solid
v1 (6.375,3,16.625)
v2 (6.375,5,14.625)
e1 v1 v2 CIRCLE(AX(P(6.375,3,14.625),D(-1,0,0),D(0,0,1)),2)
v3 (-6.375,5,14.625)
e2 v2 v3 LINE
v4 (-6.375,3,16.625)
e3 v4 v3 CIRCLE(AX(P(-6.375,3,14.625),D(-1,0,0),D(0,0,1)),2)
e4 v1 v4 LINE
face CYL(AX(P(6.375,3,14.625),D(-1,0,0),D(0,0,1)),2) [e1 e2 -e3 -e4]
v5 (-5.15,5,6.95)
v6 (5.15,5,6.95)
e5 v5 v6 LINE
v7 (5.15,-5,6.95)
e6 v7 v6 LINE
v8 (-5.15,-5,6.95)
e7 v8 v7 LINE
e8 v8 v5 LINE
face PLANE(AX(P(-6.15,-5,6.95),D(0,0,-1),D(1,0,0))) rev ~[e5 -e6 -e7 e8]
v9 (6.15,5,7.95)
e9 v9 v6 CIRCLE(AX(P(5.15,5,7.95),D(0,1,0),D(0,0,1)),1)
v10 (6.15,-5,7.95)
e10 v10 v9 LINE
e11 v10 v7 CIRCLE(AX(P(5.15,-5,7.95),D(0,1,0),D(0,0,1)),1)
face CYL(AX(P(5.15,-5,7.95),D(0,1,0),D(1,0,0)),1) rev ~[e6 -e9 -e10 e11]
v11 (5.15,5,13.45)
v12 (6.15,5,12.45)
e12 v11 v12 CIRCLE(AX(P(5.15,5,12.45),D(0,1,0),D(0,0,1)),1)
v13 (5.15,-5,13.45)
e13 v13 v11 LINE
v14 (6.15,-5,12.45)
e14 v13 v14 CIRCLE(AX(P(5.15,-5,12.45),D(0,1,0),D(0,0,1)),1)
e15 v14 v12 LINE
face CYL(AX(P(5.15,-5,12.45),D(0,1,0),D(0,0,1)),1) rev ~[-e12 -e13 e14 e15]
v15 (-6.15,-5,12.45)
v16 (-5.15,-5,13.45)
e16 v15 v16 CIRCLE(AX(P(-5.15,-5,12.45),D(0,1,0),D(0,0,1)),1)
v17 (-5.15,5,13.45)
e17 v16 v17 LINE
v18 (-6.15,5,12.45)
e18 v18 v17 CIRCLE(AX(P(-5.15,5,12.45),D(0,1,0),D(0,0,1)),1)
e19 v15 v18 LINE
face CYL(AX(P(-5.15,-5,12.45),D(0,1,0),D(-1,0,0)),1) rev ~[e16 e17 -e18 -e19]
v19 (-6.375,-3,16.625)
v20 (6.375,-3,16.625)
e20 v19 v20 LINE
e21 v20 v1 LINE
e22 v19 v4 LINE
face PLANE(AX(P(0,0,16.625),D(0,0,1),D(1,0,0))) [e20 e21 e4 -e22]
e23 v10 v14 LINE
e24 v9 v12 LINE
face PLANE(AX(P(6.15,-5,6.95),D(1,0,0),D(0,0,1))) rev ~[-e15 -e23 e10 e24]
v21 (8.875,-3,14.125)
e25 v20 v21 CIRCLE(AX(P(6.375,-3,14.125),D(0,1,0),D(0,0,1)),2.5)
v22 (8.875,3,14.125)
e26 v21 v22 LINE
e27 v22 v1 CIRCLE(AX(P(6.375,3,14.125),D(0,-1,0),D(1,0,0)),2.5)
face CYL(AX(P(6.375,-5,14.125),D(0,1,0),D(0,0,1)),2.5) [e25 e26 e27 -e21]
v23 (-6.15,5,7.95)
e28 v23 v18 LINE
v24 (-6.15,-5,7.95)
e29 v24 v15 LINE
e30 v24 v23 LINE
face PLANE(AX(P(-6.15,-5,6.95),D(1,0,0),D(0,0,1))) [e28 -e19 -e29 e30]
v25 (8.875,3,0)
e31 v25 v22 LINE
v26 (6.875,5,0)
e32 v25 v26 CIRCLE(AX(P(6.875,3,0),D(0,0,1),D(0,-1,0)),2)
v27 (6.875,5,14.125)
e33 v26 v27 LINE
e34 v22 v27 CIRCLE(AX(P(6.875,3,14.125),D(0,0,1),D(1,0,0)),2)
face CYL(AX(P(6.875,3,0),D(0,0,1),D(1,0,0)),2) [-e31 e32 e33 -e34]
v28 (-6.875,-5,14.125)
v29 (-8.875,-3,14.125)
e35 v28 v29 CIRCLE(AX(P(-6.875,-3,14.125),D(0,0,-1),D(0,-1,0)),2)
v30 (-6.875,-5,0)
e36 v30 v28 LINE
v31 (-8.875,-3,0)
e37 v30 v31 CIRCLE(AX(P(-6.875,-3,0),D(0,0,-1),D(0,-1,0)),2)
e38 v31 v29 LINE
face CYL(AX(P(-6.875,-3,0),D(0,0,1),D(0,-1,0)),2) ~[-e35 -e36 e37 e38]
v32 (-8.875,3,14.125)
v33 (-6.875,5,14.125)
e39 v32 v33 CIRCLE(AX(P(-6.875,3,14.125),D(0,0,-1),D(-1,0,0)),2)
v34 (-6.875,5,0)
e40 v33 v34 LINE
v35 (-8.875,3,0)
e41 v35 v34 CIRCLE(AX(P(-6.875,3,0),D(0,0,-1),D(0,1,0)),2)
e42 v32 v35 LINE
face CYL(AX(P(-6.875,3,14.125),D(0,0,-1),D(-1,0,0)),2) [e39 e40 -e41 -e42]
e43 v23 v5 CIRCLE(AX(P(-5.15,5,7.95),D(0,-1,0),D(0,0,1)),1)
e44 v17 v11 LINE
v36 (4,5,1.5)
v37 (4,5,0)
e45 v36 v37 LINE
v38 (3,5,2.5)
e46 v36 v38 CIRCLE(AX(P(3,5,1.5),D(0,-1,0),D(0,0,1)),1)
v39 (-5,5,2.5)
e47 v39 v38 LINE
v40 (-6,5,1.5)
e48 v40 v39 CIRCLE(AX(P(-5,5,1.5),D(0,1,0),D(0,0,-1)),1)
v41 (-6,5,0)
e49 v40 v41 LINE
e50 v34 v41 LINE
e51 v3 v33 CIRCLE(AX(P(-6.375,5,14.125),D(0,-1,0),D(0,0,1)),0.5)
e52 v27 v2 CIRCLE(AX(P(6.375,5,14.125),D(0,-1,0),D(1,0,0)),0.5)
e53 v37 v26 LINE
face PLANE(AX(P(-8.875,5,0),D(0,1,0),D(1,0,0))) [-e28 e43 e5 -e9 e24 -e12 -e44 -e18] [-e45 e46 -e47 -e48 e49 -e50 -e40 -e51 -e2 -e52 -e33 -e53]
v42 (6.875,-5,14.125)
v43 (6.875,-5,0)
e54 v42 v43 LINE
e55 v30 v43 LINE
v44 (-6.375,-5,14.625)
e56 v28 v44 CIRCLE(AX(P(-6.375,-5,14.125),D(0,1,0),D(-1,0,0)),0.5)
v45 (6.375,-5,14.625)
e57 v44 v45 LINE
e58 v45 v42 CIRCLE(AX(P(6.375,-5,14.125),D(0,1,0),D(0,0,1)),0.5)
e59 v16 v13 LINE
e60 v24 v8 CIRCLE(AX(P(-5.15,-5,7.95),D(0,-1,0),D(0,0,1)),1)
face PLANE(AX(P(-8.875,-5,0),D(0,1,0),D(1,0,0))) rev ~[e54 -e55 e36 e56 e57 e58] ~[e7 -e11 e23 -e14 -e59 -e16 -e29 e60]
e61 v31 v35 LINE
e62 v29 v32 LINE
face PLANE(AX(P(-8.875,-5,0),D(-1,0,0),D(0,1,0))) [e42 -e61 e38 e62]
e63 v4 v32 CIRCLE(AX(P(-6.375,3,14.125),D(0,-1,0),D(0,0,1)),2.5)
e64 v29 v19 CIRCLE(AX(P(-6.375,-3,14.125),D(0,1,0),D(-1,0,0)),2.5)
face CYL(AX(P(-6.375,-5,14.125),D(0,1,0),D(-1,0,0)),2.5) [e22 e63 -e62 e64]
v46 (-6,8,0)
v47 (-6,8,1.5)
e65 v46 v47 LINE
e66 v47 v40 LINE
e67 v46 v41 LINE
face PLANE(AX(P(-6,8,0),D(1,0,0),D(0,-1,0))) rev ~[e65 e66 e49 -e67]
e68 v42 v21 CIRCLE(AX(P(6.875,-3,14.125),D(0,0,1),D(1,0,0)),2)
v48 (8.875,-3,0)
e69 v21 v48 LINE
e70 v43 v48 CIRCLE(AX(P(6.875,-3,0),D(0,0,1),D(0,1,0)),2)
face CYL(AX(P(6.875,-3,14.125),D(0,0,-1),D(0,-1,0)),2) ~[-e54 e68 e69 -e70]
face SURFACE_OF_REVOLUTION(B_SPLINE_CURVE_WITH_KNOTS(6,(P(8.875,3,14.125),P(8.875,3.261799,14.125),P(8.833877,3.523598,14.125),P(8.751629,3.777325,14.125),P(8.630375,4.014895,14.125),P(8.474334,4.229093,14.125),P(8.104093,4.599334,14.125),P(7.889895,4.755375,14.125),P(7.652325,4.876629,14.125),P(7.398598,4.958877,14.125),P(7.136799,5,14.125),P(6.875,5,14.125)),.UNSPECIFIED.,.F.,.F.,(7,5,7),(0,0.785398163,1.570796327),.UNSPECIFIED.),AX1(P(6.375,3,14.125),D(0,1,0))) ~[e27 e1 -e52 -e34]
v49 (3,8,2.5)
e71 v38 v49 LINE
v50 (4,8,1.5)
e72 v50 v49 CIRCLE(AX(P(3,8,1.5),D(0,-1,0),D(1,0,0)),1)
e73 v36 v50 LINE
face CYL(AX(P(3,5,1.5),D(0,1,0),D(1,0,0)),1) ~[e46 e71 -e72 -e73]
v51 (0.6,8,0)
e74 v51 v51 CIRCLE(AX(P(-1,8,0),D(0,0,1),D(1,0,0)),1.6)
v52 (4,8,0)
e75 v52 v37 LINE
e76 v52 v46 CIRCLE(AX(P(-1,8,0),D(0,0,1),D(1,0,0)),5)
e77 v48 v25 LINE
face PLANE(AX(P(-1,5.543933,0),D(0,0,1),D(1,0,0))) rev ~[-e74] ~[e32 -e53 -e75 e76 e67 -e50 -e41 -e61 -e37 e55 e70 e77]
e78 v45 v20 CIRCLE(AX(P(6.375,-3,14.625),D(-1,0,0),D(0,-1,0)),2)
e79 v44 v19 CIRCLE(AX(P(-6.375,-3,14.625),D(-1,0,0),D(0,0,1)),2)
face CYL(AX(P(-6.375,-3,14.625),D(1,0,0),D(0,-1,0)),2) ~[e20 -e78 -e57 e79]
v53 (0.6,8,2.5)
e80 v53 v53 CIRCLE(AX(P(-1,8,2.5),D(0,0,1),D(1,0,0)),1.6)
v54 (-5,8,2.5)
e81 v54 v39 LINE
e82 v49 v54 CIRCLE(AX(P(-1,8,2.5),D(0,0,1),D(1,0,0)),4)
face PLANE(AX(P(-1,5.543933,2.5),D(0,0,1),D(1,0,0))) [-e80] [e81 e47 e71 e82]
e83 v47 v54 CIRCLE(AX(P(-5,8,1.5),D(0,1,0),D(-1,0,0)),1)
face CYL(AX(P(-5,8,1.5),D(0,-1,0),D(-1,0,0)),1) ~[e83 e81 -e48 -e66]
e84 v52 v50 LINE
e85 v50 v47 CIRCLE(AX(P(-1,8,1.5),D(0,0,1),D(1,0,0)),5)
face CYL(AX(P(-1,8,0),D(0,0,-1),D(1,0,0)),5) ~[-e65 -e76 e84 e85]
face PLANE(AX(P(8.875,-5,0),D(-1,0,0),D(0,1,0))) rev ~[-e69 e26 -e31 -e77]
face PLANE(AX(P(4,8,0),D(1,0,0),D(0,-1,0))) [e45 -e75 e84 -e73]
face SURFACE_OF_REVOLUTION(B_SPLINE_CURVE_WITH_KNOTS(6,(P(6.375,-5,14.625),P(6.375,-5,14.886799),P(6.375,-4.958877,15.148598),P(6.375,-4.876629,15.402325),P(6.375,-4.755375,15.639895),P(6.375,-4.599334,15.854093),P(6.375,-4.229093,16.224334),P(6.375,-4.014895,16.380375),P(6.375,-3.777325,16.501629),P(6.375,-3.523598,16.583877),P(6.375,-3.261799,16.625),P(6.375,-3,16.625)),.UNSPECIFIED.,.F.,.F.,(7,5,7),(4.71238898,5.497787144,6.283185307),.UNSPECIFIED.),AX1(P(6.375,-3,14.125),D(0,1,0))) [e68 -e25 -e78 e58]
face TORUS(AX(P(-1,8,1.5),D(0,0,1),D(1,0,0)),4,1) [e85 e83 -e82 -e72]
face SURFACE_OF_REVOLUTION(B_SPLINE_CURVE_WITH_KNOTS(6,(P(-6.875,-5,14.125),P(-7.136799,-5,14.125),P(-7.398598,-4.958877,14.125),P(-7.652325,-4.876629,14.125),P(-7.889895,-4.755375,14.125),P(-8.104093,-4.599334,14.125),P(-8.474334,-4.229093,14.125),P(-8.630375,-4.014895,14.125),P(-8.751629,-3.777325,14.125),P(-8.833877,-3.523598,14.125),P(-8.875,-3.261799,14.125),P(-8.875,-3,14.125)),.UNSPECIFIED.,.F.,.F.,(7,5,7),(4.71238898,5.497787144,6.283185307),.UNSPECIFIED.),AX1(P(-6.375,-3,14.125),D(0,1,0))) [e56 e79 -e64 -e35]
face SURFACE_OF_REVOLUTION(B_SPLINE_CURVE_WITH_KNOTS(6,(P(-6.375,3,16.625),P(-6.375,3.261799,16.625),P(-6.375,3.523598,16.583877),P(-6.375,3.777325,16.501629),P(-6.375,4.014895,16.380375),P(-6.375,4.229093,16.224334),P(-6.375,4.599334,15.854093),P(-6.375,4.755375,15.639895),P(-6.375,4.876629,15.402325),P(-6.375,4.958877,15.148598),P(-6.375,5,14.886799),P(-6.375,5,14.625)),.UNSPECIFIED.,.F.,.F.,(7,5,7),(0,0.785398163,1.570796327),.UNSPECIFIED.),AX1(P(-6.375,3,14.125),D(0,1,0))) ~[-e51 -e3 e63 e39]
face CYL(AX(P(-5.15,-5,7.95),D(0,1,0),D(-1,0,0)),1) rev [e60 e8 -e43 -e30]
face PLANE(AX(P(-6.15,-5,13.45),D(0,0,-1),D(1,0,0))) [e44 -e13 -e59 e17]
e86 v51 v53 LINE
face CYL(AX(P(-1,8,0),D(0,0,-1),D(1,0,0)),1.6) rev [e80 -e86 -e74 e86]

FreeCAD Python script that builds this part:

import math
import FreeCAD as App
import Part
import Sketcher

V = App.Vector
Q = App.Units.Quantity


def edges_at(feature, points):
    """Names of the edges that pass closest to the given points."""
    edges = feature.Shape.Edges
    near = lambda p: min(range(len(edges)), key=lambda i: edges[i].distToShape(Part.Vertex(*p))[0])
    return sorted({f"Edge{near(p) + 1}" for p in points})

doc = App.newDocument("Part")
body = doc.addObject("PartDesign::Body", "Body")

# Sketch on XY plane
sketch1 = doc.addObject("Sketcher::SketchObject", "Sketch")
body.addObject(sketch1)
sketch1.AttachmentSupport = (doc.XY_Plane, [""])
sketch1.MapMode = "FlatFace"
sketch1.addGeometry([
    Part.LineSegment(V(-9, 5, 0), V(-9, -5, 0)),
    Part.LineSegment(V(-9, -5, 0), V(9, -5, 0)),
    Part.LineSegment(V(9, -5, 0), V(9, 5, 0)),
    Part.LineSegment(V(9, 5, 0), V(-9, 5, 0)),
], False)
sketch1.addConstraint([
    Sketcher.Constraint("Coincident", 0, 2, 1, 1),
    Sketcher.Constraint("Coincident", 1, 2, 2, 1),
    Sketcher.Constraint("Coincident", 2, 2, 3, 1),
    Sketcher.Constraint("Coincident", 3, 2, 0, 1),
    Sketcher.Constraint("Vertical", 0),
    Sketcher.Constraint("Horizontal", 1),
    Sketcher.Constraint("Vertical", 2),
    Sketcher.Constraint("Horizontal", 3),
    Sketcher.Constraint("Symmetric", 0, 2, 2, 2, -1, 1),
    Sketcher.Constraint("DistanceY", 0, 2, 0, 1, Q("10 mm")),
    Sketcher.Constraint("DistanceX", 1, 1, 1, 2, Q("17.75 mm")),
])
pad1 = doc.addObject("PartDesign::Pad", "Pad")
body.addObject(pad1)
pad1.Profile = sketch1
pad1.Length = 16.625

# Sketch on XZ plane
sketch2 = doc.addObject("Sketcher::SketchObject", "Sketch001")
body.addObject(sketch2)
sketch2.AttachmentSupport = (doc.XZ_Plane, [""])
sketch2.MapMode = "FlatFace"
sketch2.AttachmentOffset = App.Placement(V(0, 0, 5), App.Rotation())
sketch2.addGeometry([
    Part.LineSegment(V(-6, 13, 0), V(-6, 7, 0)),
    Part.LineSegment(V(-6, 7, 0), V(6, 7, 0)),
    Part.LineSegment(V(6, 7, 0), V(6, 13, 0)),
    Part.LineSegment(V(6, 13, 0), V(-6, 13, 0)),
], False)
sketch2.addConstraint([
    Sketcher.Constraint("Coincident", 0, 2, 1, 1),
    Sketcher.Constraint("Coincident", 1, 2, 2, 1),
    Sketcher.Constraint("Coincident", 2, 2, 3, 1),
    Sketcher.Constraint("Coincident", 3, 2, 0, 1),
    Sketcher.Constraint("Vertical", 0),
    Sketcher.Constraint("Horizontal", 1),
    Sketcher.Constraint("Vertical", 2),
    Sketcher.Constraint("Horizontal", 3),
    Sketcher.Constraint("DistanceX", 1, 1, 1, 2, Q("12.3 mm")),
    Sketcher.Constraint("DistanceY", 0, 2, 0, 1, Q("6.5 mm")),
    Sketcher.Constraint("DistanceX", 0, 2, -1, 1, Q("6.15 mm")),
    Sketcher.Constraint("DistanceY", -1, 1, 0, 2, Q("6.95 mm")),
])
pocket1 = doc.addObject("PartDesign::Pocket", "Pocket")
body.addObject(pocket1)
pocket1.Profile = sketch2
pocket1.Length = 10
doc.recompute()

fillet = doc.addObject("PartDesign::Fillet", "Fillet")
body.addObject(fillet)
fillet.Base = (pocket1, edges_at(pocket1, [
    (-6.15, 0, 13.45),
    (6.15, 0, 13.45),
    (6.15, 0, 6.95),
    (-6.15, 0, 6.95),
]))
fillet.Radius = 1
doc.recompute()

fillet2 = doc.addObject("PartDesign::Fillet", "Fillet001")
body.addObject(fillet2)
fillet2.Base = (fillet, edges_at(fillet, [(8.875, 0, 16.625), (-8.875, 0, 16.625)]))
fillet2.Radius = 2.5
doc.recompute()

fillet3 = doc.addObject("PartDesign::Fillet", "Fillet002")
body.addObject(fillet3)
fillet3.Base = (fillet2, edges_at(fillet2, [(8.875, 5, 7.062), (-8.875, 5, 7.062)]))
fillet3.Radius = 2
doc.recompute()

fillet4 = doc.addObject("PartDesign::Fillet", "Fillet003")
body.addObject(fillet4)
fillet4.Base = (fillet3, edges_at(fillet3, [(0, -5, 16.625)]))
fillet4.Radius = 2

# Sketch on XY plane
sketch3 = doc.addObject("Sketcher::SketchObject", "Sketch002")
body.addObject(sketch3)
sketch3.AttachmentSupport = (doc.XY_Plane, [""])
sketch3.MapMode = "FlatFace"
sketch3.addGeometry([
    Part.LineSegment(V(-6, 8, 0), V(-6, 0, 0)),  # 0
    Part.LineSegment(V(-6, 0, 0), V(4, 0, 0)),  # 1
    Part.LineSegment(V(4, 0, 0), V(4, 8, 0)),  # 2
    Part.ArcOfCircle(Part.Circle(V(-1, 8, 0), V(0, 0, 1), 5), math.radians(0), math.radians(180)),  # 3
    Part.Circle(V(-1, 8, 0), V(0, 0, 1), 1.6),  # 4
], False)
sketch3.addConstraint([
    Sketcher.Constraint("Coincident", 0, 2, 1, 1),
    Sketcher.Constraint("Coincident", 1, 2, 2, 1),
    Sketcher.Constraint("Tangent", 2, 2, 3, 1),
    Sketcher.Constraint("Tangent", 3, 2, 0, 1),
    Sketcher.Constraint("Vertical", 0),
    Sketcher.Constraint("Horizontal", 1),
    Sketcher.Constraint("Vertical", 2),
    Sketcher.Constraint("Coincident", 4, 3, 3, 3),
    Sketcher.Constraint("PointOnObject", 0, 2, -1),
    Sketcher.Constraint("Radius", 3, Q("5 mm")),
    Sketcher.Constraint("Diameter", 4, Q("3.2 mm")),
    Sketcher.Constraint("DistanceY", 0, 2, 0, 1, Q("8 mm")),
    Sketcher.Constraint("DistanceX", 3, 3, -1, 1, Q("1 mm")),
])
pad2 = doc.addObject("PartDesign::Pad", "Pad001")
body.addObject(pad2)
pad2.Profile = sketch3
pad2.Length = 2.5
doc.recompute()

fillet5 = doc.addObject("PartDesign::Fillet", "Fillet004")
body.addObject(fillet5)
fillet5.Base = (pad2, edges_at(pad2, [(-6, 6.5, 2.5), (-1, 13, 2.5), (4, 6.5, 2.5)]))
fillet5.Radius = 1

doc.recompute()
